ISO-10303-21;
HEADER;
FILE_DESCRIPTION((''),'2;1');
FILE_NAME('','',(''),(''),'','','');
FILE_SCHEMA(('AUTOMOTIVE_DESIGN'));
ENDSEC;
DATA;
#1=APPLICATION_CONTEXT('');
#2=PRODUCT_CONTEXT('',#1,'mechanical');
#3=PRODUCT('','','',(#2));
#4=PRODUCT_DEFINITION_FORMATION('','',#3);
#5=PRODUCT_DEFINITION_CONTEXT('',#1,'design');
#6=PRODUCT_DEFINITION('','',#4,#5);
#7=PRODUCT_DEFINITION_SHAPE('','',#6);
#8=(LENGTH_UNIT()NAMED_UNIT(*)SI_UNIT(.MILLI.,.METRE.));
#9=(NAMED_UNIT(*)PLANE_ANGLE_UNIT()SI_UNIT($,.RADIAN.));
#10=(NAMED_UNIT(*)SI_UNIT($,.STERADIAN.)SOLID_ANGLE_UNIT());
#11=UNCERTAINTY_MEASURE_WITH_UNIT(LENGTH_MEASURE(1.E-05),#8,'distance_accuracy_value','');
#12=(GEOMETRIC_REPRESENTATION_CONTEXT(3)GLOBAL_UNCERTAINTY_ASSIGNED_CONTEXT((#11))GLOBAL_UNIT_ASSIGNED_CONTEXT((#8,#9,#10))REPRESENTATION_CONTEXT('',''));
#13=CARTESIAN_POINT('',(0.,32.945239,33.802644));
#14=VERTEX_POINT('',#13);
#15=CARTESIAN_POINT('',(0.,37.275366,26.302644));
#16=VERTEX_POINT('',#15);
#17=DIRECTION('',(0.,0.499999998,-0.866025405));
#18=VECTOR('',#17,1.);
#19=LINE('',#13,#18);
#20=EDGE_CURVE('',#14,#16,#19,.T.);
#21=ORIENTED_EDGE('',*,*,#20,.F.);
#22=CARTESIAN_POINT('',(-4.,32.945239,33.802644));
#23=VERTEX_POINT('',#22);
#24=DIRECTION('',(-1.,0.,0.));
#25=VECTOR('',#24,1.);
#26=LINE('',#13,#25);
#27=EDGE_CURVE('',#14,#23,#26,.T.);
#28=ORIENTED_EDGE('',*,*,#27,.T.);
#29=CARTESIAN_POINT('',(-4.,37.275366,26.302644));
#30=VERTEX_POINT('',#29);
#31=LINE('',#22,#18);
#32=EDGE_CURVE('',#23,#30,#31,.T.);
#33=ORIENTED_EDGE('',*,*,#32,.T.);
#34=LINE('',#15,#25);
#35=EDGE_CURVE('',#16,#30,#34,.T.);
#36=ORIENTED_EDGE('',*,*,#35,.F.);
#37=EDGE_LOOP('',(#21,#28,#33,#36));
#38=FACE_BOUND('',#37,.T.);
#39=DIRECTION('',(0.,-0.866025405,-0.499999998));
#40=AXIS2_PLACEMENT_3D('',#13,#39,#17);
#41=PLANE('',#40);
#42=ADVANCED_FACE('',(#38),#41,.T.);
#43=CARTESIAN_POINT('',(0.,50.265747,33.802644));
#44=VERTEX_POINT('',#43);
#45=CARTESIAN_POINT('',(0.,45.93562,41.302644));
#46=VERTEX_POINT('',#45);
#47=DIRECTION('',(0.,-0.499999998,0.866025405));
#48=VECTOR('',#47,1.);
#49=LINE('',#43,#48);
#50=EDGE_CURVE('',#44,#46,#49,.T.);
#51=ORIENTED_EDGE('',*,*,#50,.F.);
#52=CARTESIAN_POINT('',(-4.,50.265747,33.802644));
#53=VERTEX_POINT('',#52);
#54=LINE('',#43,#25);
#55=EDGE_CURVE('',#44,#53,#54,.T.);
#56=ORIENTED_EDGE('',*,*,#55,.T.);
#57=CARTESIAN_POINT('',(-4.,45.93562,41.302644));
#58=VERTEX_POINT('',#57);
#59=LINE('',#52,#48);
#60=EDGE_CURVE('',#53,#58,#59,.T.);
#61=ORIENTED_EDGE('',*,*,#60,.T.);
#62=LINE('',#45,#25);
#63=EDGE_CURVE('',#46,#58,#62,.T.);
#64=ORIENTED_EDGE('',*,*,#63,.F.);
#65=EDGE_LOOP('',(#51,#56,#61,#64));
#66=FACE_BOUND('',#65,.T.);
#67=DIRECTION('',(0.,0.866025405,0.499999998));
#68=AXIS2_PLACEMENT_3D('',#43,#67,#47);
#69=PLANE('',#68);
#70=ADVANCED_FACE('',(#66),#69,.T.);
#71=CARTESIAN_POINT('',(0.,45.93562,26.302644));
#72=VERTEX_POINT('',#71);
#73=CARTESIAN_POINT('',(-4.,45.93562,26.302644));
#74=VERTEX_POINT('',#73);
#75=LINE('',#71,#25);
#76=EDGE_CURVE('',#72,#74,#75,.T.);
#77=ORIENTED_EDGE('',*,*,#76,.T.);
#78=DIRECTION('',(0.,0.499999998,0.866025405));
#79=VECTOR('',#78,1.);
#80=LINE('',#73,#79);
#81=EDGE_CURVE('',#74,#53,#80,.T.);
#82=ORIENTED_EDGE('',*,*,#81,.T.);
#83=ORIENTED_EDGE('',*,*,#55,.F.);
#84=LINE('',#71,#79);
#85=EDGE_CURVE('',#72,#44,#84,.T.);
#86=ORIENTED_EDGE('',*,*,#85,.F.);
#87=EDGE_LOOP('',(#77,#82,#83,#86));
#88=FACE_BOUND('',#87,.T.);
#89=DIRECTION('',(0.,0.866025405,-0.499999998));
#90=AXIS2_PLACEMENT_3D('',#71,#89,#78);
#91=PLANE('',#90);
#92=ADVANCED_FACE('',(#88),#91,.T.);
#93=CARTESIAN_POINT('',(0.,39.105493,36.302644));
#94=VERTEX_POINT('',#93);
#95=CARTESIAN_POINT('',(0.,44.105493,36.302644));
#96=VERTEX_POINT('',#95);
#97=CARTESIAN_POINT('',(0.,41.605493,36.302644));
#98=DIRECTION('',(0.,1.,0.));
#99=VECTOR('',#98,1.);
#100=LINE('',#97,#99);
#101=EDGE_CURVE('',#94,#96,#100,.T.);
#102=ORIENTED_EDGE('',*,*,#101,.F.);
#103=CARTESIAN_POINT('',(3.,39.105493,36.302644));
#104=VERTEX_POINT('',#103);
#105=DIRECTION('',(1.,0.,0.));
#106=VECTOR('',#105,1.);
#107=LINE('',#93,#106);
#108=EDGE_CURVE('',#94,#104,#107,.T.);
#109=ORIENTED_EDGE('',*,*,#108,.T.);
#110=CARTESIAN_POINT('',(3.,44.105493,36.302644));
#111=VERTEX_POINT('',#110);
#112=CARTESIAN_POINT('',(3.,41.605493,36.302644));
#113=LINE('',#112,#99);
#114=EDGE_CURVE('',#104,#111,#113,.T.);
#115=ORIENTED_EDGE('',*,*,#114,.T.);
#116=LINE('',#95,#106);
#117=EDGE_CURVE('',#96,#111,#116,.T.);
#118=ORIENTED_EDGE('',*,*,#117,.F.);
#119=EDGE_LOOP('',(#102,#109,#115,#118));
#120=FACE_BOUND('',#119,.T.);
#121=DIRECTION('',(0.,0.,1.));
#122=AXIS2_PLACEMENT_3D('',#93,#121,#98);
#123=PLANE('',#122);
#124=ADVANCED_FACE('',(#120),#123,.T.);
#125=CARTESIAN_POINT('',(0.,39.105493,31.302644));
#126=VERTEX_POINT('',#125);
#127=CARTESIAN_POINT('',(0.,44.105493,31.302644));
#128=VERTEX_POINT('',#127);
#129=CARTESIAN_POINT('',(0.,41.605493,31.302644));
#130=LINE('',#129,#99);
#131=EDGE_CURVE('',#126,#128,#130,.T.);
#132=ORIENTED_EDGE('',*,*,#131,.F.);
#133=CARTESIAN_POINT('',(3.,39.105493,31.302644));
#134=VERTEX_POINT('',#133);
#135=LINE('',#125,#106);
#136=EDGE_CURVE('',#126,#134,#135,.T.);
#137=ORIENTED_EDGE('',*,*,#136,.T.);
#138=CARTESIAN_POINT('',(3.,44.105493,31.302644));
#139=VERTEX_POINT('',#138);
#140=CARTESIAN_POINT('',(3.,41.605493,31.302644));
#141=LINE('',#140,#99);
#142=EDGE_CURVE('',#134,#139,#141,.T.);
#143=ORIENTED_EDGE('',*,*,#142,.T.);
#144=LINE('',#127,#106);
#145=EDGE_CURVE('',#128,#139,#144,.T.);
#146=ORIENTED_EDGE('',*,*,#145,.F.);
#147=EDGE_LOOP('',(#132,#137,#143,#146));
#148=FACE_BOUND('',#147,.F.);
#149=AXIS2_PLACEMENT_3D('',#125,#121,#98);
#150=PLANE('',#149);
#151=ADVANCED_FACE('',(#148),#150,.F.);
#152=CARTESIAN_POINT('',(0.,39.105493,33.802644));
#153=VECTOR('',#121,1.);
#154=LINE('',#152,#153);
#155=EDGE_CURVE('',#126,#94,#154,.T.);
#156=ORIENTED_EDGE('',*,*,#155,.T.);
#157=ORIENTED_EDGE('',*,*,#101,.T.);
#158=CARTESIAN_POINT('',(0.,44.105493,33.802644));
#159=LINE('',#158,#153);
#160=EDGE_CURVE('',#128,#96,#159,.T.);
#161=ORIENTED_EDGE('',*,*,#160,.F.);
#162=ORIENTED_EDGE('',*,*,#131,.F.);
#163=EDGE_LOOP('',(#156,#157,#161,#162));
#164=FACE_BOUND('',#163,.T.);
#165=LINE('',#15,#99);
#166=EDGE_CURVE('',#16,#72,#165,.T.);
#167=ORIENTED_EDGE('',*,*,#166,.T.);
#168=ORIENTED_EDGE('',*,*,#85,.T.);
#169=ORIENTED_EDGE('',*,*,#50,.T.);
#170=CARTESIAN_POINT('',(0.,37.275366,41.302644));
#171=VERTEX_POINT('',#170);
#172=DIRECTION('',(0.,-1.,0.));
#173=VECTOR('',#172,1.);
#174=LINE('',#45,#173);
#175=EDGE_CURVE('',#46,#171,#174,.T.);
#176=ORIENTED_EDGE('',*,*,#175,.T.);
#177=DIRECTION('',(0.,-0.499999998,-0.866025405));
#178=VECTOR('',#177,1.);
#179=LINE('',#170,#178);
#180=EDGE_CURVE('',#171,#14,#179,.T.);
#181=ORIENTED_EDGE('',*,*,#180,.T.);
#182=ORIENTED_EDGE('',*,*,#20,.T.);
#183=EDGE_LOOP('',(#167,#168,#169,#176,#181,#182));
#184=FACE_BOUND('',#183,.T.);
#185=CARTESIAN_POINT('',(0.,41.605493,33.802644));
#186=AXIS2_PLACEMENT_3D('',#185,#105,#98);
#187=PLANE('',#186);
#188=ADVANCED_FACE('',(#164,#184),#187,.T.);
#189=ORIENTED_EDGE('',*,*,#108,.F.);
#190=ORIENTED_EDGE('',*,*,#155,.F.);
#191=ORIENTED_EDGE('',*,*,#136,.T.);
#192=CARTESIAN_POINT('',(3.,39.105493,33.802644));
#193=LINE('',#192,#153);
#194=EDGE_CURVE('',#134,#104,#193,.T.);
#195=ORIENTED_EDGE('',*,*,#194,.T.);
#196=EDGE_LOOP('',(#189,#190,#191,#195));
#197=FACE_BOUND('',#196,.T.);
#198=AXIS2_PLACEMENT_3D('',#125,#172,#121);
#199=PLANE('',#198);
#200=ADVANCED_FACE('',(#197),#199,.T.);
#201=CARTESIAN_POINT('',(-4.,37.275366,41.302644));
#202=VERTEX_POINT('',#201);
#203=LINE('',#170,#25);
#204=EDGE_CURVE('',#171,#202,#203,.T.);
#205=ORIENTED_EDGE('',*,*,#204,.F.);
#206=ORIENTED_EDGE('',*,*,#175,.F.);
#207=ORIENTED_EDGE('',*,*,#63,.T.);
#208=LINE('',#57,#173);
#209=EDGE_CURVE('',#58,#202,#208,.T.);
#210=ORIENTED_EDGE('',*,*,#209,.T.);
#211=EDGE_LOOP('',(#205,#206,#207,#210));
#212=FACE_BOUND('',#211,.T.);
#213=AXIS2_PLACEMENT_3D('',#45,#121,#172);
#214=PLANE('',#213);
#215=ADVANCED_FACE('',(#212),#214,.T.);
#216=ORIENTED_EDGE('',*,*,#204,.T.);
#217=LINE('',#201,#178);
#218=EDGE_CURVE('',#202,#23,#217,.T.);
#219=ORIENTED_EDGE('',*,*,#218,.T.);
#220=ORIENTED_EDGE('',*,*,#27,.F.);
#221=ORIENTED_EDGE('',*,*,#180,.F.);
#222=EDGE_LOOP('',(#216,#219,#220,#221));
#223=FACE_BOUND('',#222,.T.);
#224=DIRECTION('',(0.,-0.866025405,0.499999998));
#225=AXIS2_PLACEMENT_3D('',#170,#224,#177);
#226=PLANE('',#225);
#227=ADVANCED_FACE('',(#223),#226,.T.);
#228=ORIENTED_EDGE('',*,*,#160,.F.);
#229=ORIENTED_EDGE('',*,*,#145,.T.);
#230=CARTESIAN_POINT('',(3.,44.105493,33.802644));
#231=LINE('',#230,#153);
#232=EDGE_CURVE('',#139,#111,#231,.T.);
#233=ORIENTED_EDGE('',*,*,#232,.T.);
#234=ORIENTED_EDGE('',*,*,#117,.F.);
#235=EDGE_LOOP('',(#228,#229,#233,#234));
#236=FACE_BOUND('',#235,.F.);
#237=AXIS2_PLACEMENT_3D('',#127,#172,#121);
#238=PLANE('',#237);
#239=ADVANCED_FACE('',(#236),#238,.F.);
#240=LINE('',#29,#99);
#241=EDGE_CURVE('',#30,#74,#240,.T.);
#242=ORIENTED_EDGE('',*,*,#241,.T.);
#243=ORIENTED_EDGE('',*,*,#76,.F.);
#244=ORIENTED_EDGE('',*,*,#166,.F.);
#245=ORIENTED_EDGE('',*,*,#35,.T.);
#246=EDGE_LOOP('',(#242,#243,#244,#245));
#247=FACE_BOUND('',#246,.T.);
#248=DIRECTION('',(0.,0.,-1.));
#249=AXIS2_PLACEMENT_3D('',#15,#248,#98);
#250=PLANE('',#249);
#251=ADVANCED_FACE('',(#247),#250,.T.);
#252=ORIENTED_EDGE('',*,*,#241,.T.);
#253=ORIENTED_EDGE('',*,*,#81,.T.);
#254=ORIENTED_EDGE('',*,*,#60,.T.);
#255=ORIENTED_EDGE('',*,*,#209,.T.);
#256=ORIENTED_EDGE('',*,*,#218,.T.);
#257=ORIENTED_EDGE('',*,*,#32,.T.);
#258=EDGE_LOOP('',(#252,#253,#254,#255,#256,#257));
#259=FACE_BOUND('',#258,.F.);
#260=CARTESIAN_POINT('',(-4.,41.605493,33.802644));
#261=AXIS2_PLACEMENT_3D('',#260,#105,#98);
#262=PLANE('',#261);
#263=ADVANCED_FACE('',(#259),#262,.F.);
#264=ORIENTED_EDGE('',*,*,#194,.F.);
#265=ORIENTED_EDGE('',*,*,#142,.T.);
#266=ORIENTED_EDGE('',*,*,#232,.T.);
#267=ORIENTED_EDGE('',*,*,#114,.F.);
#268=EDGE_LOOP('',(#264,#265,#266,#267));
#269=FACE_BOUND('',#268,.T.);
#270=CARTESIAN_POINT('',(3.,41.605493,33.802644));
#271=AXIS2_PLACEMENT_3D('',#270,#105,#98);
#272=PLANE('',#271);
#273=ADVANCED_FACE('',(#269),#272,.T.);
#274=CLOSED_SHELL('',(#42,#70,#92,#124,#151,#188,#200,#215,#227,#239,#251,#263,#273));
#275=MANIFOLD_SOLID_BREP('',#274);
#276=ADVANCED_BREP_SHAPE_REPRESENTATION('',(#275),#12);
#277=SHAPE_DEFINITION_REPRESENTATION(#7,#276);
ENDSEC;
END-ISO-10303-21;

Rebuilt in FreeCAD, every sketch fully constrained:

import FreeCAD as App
import Part
import Sketcher
Q = App.Units.Quantity

doc = App.newDocument("Part")
body = doc.addObject("PartDesign::Body", "Body")

sketch1 = body.newObject("Sketcher::SketchObject", "Sketch")
sketch1.AttachmentSupport = (doc.getObject("YZ_Plane"), [""])
sketch1.MapMode = "FlatFace"
sketch1.addGeometry([
    Part.LineSegment(App.Vector(39, 36, 0), App.Vector(39, 31, 0)),
    Part.LineSegment(App.Vector(39, 31, 0), App.Vector(44, 31, 0)),
    Part.LineSegment(App.Vector(44, 31, 0), App.Vector(44, 36, 0)),
    Part.LineSegment(App.Vector(44, 36, 0), App.Vector(39, 36, 0)),
], False)
sketch1.addConstraint([
    Sketcher.Constraint("Coincident", 0, 2, 1, 1),
    Sketcher.Constraint("Coincident", 1, 2, 2, 1),
    Sketcher.Constraint("Coincident", 2, 2, 3, 1),
    Sketcher.Constraint("Coincident", 3, 2, 0, 1),
    Sketcher.Constraint("Vertical", 0),
    Sketcher.Constraint("Horizontal", 1),
    Sketcher.Constraint("Vertical", 2),
    Sketcher.Constraint("Horizontal", 3),
    Sketcher.Constraint("Equal", 3, 0),
    Sketcher.Constraint("DistanceX", 1, 1, 1, 2, Q("5 mm")),
    Sketcher.Constraint("DistanceX", -1, 1, 0, 2, Q("39.105493 mm")),
    Sketcher.Constraint("DistanceY", -1, 1, 0, 2, Q("31.302644 mm")),
])
pad1 = body.newObject("PartDesign::Pad", "Pad")
pad1.Profile = sketch1
pad1.Length = 3

sketch2 = body.newObject("Sketcher::SketchObject", "Sketch001")
sketch2.AttachmentSupport = (doc.getObject("YZ_Plane"), [""])
sketch2.MapMode = "FlatFace"
sketch2.addGeometry([
    Part.LineSegment(App.Vector(46, 41, 0), App.Vector(37, 41, 0)),
    Part.LineSegment(App.Vector(37, 41, 0), App.Vector(33, 34, 0)),
    Part.LineSegment(App.Vector(33, 34, 0), App.Vector(37, 26, 0)),
    Part.LineSegment(App.Vector(37, 26, 0), App.Vector(46, 26, 0)),
    Part.LineSegment(App.Vector(46, 26, 0), App.Vector(50, 34, 0)),
    Part.LineSegment(App.Vector(50, 34, 0), App.Vector(46, 41, 0)),
], False)
sketch2.addConstraint([
    Sketcher.Constraint("Coincident", 0, 2, 1, 1),
    Sketcher.Constraint("Coincident", 1, 2, 2, 1),
    Sketcher.Constraint("Coincident", 2, 2, 3, 1),
    Sketcher.Constraint("Coincident", 3, 2, 4, 1),
    Sketcher.Constraint("Coincident", 4, 2, 5, 1),
    Sketcher.Constraint("Coincident", 5, 2, 0, 1),
    Sketcher.Constraint("Horizontal", 0),
    Sketcher.Constraint("Horizontal", 3),
    Sketcher.Constraint("Parallel", 1, 4),
    Sketcher.Constraint("Parallel", 2, 5),
    Sketcher.Constraint("Horizontal", 1, 2, 4, 2),
    Sketcher.Constraint("Vertical", 0, 2, 2, 2),
    Sketcher.Constraint("Vertical", 3, 2, 5, 2),
    Sketcher.Constraint("Angle", 1, Q("-120 deg")),
    Sketcher.Constraint("DistanceY", 2, 2, 0, 2, Q("15 mm")),
    Sketcher.Constraint("DistanceX", 0, 2, 0, 1, Q("8.660254 mm")),
    Sketcher.Constraint("DistanceX", -1, 1, 1, 2, Q("32.945239 mm")),
    Sketcher.Constraint("DistanceY", -1, 1, 0, 2, Q("41.302644 mm")),
])
pad2 = body.newObject("PartDesign::Pad", "Pad001")
pad2.Profile = sketch2
pad2.Length = 4
pad2.Reversed = True

doc.recompute()
